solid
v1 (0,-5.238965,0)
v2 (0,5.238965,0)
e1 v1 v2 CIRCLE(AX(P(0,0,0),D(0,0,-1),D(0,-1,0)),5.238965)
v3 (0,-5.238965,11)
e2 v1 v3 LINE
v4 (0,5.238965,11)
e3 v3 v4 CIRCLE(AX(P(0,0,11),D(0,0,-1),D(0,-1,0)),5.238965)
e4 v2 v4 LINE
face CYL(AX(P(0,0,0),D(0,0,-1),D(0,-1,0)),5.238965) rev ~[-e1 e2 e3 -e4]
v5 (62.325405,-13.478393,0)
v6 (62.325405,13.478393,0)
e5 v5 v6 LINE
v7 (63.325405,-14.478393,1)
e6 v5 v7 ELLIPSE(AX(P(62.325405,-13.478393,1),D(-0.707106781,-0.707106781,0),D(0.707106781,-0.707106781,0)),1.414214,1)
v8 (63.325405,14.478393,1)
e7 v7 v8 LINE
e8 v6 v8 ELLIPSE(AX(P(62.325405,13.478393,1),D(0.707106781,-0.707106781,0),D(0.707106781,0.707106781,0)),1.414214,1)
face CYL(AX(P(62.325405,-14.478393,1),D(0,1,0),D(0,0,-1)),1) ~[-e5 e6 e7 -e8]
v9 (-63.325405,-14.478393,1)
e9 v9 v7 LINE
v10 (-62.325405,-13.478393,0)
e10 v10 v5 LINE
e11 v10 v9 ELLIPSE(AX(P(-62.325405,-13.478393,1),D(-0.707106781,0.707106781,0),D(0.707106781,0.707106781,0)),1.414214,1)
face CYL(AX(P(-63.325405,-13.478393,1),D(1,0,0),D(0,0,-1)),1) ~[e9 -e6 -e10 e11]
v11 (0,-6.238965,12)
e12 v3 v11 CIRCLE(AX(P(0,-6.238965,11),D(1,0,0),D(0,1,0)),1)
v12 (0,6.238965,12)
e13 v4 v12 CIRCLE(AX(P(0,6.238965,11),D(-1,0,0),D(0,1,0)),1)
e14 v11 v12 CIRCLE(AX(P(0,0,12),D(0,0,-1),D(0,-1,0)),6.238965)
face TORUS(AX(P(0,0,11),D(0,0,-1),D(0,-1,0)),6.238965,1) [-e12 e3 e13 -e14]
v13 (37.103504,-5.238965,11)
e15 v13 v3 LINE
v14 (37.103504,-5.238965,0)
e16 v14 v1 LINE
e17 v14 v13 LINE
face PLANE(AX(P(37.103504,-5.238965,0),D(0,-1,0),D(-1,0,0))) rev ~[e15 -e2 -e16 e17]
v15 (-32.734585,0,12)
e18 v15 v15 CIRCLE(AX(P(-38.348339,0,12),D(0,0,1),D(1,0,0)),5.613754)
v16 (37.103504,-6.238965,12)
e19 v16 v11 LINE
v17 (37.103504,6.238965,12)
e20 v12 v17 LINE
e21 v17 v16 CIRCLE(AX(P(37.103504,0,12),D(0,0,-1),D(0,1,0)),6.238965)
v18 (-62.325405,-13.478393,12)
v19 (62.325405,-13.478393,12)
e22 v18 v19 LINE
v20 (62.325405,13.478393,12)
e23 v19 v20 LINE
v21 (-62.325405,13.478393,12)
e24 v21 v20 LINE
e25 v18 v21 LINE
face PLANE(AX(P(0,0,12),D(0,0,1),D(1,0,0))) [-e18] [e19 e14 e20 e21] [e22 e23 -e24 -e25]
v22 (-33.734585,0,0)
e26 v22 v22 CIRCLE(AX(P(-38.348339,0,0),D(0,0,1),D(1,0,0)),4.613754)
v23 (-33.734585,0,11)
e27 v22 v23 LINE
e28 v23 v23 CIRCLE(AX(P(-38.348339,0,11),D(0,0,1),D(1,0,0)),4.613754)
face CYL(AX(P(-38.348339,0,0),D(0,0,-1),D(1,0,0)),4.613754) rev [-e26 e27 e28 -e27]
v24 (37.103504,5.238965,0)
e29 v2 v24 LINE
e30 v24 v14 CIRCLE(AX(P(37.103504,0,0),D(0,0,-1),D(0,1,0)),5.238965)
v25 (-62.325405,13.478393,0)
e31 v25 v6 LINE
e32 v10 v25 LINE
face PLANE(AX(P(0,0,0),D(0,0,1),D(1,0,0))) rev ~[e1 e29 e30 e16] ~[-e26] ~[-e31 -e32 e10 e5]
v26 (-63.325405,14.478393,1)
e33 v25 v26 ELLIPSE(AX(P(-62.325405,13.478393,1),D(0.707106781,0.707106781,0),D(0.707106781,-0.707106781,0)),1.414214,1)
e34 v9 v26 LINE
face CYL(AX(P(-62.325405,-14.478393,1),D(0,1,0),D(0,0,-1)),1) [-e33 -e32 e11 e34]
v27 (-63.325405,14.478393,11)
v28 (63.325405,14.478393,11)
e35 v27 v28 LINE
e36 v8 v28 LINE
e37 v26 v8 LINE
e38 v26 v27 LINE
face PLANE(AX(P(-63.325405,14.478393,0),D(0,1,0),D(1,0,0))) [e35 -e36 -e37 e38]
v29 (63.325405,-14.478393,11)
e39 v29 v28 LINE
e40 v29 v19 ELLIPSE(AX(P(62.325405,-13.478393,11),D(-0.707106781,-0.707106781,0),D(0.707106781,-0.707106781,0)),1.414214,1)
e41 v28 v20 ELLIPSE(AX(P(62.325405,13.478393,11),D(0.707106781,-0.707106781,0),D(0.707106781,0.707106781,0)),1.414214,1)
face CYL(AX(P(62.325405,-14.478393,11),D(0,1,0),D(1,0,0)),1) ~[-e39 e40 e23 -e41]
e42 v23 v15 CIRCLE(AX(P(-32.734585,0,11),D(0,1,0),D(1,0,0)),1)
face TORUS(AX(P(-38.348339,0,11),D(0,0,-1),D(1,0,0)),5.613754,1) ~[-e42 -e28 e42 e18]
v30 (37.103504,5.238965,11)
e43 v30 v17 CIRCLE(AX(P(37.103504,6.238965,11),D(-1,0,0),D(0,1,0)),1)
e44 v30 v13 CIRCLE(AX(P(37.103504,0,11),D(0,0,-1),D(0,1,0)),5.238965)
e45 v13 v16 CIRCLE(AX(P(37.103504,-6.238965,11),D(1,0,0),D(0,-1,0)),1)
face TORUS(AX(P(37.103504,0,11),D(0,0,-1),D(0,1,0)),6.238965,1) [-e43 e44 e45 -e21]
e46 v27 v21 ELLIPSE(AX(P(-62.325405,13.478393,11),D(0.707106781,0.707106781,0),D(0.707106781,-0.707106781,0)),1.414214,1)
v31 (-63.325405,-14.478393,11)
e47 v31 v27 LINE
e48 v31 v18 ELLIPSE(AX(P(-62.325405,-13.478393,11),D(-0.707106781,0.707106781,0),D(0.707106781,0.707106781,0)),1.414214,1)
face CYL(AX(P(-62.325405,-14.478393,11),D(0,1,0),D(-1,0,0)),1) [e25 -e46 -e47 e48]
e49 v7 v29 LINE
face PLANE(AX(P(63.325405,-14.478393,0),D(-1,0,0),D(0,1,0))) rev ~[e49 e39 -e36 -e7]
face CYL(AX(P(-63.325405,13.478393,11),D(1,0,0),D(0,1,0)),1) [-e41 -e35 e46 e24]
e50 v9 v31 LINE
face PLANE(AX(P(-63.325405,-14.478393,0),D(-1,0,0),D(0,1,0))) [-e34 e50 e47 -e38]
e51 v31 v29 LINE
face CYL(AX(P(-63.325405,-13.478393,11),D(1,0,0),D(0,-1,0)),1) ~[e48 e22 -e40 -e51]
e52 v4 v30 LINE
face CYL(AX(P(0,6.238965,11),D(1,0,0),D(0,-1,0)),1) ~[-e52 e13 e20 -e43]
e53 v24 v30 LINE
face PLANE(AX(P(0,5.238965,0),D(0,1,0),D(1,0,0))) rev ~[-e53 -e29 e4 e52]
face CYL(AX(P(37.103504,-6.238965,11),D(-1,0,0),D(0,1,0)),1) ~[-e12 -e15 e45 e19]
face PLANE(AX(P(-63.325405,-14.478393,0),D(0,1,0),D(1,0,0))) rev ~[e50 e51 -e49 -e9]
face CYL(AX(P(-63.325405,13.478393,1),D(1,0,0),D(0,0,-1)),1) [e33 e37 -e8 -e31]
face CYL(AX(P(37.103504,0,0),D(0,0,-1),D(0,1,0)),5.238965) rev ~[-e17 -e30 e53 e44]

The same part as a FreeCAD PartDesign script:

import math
import FreeCAD as App
import Part
import Sketcher


def edges_at(feature, points):
    """Names of the edges that pass closest to the given points."""
    edges = feature.Shape.Edges
    near = lambda p: min(range(len(edges)), key=lambda i: edges[i].distToShape(Part.Vertex(*p))[0])
    return sorted({f"Edge{near(p) + 1}" for p in points})

doc = App.newDocument("Part")
params = doc.addObject("Spreadsheet::Sheet", "Params")
for row, (alias, value) in enumerate([
    ("pad1_length", "12 mm"),
    ("fillet_radius", "1 mm"),
    ("fillet2_radius", "1 mm"),
    ("fillet3_radius", "1 mm"),
], start=1):
    params.set(f"A{row}", alias)
    params.set(f"B{row}", "=" + value)
    params.setAlias(f"B{row}", alias)

body = doc.addObject("PartDesign::Body", "Body")

# Sketch on XY plane
sketch1 = body.newObject("Sketcher::SketchObject", "Sketch")
sketch1.AttachmentSupport = (doc.getObject("XY_Plane"), [""])
sketch1.MapMode = "FlatFace"
sketch1.addGeometry(Part.LineSegment(App.Vector(-63.3, 14.5, 0), App.Vector(-63.3, -14.5, 0)), False)
sketch1.addGeometry(Part.LineSegment(App.Vector(-63.3, -14.5, 0), App.Vector(63.3, -14.5, 0)), False)
sketch1.addGeometry(Part.LineSegment(App.Vector(63.3, -14.5, 0), App.Vector(63.3, 14.5, 0)), False)
sketch1.addGeometry(Part.LineSegment(App.Vector(63.3, 14.5, 0), App.Vector(-63.3, 14.5, 0)), False)
sketch1.addGeometry(Part.Circle(App.Vector(-38.3, 0, 0), App.Vector(0, 0, 1), 4.6), False)
sketch1.addGeometry(Part.LineSegment(App.Vector(37.1, -5.2, 0), App.Vector(0, -5.2, 0)), False)
sketch1.addGeometry(Part.ArcOfCircle(Part.Circle(App.Vector(0, 0, 0), App.Vector(0, 0, 1), 5.2), math.radians(90), math.radians(270)), False)
sketch1.addGeometry(Part.LineSegment(App.Vector(0, 5.2, 0), App.Vector(37.1, 5.2, 0)), False)
sketch1.addGeometry(Part.ArcOfCircle(Part.Circle(App.Vector(37.1, 0, 0), App.Vector(0, 0, 1), 5.2), math.radians(-90), math.radians(90)), False)
sketch1.addConstraint(Sketcher.Constraint("Coincident", 0, 2, 1, 1))
sketch1.addConstraint(Sketcher.Constraint("Coincident", 1, 2, 2, 1))
sketch1.addConstraint(Sketcher.Constraint("Coincident", 2, 2, 3, 1))
sketch1.addConstraint(Sketcher.Constraint("Coincident", 3, 2, 0, 1))
sketch1.addConstraint(Sketcher.Constraint("Tangent", 5, 2, 6, 2))
sketch1.addConstraint(Sketcher.Constraint("Tangent", 6, 1, 7, 1))
sketch1.addConstraint(Sketcher.Constraint("Tangent", 7, 2, 8, 2))
sketch1.addConstraint(Sketcher.Constraint("Tangent", 8, 1, 5, 1))
sketch1.addConstraint(Sketcher.Constraint("Vertical", 0))
sketch1.addConstraint(Sketcher.Constraint("Horizontal", 1))
sketch1.addConstraint(Sketcher.Constraint("Vertical", 2))
sketch1.addConstraint(Sketcher.Constraint("Horizontal", 3))
sketch1.addConstraint(Sketcher.Constraint("Horizontal", 5))
sketch1.addConstraint(Sketcher.Constraint("Horizontal", 7))
sketch1.addConstraint(Sketcher.Constraint("Coincident", 6, 3, -1, 1))
sketch1.addConstraint(Sketcher.Constraint("Symmetric", 0, 2, 2, 2, -1, 1))
sketch1.addConstraint(Sketcher.Constraint("PointOnObject", 4, 3, -1))
sketch1.addConstraint(Sketcher.Constraint("Diameter", 4, 9.227508))
sketch1.addConstraint(Sketcher.Constraint("Radius", 6, 5.238965))
sketch1.addConstraint(Sketcher.Constraint("DistanceX", 1, 1, 1, 2, 126.65081))
sketch1.addConstraint(Sketcher.Constraint("DistanceX", 8, 3, 1, 2, 26.221901))
sketch1.addConstraint(Sketcher.Constraint("DistanceY", 0, 2, 0, 1, 28.956786))
sketch1.addConstraint(Sketcher.Constraint("DistanceX", 4, 3, -1, 1, 38.348339))
pad1 = body.newObject("PartDesign::Pad", "Pad")
pad1.Profile = sketch1
pad1.setExpression("Length", "Params.pad1_length")
doc.recompute()

fillet = body.newObject("PartDesign::Fillet", "Fillet")
fillet.Base = (pad1, edges_at(pad1, [(-42.962, 0, 12), (42.342, 0, 12)]))
fillet.setExpression("Radius", "Params.fillet_radius")
doc.recompute()

fillet2 = body.newObject("PartDesign::Fillet", "Fillet001")
fillet2.Base = (fillet, edges_at(fillet, [
    (0, -14.478, 0),
    (0, 14.478, 0),
    (63.325, 0, 0),
    (-63.325, 0, 0),
]))
fillet2.setExpression("Radius", "Params.fillet2_radius")
doc.recompute()

fillet3 = body.newObject("PartDesign::Fillet", "Fillet002")
fillet3.Base = (fillet2, edges_at(fillet2, [
    (0, -14.478, 12),
    (63.325, 0, 12),
    (0, 14.478, 12),
    (-63.325, 0, 12),
]))
fillet3.setExpression("Radius", "Params.fillet3_radius")

doc.recompute()
